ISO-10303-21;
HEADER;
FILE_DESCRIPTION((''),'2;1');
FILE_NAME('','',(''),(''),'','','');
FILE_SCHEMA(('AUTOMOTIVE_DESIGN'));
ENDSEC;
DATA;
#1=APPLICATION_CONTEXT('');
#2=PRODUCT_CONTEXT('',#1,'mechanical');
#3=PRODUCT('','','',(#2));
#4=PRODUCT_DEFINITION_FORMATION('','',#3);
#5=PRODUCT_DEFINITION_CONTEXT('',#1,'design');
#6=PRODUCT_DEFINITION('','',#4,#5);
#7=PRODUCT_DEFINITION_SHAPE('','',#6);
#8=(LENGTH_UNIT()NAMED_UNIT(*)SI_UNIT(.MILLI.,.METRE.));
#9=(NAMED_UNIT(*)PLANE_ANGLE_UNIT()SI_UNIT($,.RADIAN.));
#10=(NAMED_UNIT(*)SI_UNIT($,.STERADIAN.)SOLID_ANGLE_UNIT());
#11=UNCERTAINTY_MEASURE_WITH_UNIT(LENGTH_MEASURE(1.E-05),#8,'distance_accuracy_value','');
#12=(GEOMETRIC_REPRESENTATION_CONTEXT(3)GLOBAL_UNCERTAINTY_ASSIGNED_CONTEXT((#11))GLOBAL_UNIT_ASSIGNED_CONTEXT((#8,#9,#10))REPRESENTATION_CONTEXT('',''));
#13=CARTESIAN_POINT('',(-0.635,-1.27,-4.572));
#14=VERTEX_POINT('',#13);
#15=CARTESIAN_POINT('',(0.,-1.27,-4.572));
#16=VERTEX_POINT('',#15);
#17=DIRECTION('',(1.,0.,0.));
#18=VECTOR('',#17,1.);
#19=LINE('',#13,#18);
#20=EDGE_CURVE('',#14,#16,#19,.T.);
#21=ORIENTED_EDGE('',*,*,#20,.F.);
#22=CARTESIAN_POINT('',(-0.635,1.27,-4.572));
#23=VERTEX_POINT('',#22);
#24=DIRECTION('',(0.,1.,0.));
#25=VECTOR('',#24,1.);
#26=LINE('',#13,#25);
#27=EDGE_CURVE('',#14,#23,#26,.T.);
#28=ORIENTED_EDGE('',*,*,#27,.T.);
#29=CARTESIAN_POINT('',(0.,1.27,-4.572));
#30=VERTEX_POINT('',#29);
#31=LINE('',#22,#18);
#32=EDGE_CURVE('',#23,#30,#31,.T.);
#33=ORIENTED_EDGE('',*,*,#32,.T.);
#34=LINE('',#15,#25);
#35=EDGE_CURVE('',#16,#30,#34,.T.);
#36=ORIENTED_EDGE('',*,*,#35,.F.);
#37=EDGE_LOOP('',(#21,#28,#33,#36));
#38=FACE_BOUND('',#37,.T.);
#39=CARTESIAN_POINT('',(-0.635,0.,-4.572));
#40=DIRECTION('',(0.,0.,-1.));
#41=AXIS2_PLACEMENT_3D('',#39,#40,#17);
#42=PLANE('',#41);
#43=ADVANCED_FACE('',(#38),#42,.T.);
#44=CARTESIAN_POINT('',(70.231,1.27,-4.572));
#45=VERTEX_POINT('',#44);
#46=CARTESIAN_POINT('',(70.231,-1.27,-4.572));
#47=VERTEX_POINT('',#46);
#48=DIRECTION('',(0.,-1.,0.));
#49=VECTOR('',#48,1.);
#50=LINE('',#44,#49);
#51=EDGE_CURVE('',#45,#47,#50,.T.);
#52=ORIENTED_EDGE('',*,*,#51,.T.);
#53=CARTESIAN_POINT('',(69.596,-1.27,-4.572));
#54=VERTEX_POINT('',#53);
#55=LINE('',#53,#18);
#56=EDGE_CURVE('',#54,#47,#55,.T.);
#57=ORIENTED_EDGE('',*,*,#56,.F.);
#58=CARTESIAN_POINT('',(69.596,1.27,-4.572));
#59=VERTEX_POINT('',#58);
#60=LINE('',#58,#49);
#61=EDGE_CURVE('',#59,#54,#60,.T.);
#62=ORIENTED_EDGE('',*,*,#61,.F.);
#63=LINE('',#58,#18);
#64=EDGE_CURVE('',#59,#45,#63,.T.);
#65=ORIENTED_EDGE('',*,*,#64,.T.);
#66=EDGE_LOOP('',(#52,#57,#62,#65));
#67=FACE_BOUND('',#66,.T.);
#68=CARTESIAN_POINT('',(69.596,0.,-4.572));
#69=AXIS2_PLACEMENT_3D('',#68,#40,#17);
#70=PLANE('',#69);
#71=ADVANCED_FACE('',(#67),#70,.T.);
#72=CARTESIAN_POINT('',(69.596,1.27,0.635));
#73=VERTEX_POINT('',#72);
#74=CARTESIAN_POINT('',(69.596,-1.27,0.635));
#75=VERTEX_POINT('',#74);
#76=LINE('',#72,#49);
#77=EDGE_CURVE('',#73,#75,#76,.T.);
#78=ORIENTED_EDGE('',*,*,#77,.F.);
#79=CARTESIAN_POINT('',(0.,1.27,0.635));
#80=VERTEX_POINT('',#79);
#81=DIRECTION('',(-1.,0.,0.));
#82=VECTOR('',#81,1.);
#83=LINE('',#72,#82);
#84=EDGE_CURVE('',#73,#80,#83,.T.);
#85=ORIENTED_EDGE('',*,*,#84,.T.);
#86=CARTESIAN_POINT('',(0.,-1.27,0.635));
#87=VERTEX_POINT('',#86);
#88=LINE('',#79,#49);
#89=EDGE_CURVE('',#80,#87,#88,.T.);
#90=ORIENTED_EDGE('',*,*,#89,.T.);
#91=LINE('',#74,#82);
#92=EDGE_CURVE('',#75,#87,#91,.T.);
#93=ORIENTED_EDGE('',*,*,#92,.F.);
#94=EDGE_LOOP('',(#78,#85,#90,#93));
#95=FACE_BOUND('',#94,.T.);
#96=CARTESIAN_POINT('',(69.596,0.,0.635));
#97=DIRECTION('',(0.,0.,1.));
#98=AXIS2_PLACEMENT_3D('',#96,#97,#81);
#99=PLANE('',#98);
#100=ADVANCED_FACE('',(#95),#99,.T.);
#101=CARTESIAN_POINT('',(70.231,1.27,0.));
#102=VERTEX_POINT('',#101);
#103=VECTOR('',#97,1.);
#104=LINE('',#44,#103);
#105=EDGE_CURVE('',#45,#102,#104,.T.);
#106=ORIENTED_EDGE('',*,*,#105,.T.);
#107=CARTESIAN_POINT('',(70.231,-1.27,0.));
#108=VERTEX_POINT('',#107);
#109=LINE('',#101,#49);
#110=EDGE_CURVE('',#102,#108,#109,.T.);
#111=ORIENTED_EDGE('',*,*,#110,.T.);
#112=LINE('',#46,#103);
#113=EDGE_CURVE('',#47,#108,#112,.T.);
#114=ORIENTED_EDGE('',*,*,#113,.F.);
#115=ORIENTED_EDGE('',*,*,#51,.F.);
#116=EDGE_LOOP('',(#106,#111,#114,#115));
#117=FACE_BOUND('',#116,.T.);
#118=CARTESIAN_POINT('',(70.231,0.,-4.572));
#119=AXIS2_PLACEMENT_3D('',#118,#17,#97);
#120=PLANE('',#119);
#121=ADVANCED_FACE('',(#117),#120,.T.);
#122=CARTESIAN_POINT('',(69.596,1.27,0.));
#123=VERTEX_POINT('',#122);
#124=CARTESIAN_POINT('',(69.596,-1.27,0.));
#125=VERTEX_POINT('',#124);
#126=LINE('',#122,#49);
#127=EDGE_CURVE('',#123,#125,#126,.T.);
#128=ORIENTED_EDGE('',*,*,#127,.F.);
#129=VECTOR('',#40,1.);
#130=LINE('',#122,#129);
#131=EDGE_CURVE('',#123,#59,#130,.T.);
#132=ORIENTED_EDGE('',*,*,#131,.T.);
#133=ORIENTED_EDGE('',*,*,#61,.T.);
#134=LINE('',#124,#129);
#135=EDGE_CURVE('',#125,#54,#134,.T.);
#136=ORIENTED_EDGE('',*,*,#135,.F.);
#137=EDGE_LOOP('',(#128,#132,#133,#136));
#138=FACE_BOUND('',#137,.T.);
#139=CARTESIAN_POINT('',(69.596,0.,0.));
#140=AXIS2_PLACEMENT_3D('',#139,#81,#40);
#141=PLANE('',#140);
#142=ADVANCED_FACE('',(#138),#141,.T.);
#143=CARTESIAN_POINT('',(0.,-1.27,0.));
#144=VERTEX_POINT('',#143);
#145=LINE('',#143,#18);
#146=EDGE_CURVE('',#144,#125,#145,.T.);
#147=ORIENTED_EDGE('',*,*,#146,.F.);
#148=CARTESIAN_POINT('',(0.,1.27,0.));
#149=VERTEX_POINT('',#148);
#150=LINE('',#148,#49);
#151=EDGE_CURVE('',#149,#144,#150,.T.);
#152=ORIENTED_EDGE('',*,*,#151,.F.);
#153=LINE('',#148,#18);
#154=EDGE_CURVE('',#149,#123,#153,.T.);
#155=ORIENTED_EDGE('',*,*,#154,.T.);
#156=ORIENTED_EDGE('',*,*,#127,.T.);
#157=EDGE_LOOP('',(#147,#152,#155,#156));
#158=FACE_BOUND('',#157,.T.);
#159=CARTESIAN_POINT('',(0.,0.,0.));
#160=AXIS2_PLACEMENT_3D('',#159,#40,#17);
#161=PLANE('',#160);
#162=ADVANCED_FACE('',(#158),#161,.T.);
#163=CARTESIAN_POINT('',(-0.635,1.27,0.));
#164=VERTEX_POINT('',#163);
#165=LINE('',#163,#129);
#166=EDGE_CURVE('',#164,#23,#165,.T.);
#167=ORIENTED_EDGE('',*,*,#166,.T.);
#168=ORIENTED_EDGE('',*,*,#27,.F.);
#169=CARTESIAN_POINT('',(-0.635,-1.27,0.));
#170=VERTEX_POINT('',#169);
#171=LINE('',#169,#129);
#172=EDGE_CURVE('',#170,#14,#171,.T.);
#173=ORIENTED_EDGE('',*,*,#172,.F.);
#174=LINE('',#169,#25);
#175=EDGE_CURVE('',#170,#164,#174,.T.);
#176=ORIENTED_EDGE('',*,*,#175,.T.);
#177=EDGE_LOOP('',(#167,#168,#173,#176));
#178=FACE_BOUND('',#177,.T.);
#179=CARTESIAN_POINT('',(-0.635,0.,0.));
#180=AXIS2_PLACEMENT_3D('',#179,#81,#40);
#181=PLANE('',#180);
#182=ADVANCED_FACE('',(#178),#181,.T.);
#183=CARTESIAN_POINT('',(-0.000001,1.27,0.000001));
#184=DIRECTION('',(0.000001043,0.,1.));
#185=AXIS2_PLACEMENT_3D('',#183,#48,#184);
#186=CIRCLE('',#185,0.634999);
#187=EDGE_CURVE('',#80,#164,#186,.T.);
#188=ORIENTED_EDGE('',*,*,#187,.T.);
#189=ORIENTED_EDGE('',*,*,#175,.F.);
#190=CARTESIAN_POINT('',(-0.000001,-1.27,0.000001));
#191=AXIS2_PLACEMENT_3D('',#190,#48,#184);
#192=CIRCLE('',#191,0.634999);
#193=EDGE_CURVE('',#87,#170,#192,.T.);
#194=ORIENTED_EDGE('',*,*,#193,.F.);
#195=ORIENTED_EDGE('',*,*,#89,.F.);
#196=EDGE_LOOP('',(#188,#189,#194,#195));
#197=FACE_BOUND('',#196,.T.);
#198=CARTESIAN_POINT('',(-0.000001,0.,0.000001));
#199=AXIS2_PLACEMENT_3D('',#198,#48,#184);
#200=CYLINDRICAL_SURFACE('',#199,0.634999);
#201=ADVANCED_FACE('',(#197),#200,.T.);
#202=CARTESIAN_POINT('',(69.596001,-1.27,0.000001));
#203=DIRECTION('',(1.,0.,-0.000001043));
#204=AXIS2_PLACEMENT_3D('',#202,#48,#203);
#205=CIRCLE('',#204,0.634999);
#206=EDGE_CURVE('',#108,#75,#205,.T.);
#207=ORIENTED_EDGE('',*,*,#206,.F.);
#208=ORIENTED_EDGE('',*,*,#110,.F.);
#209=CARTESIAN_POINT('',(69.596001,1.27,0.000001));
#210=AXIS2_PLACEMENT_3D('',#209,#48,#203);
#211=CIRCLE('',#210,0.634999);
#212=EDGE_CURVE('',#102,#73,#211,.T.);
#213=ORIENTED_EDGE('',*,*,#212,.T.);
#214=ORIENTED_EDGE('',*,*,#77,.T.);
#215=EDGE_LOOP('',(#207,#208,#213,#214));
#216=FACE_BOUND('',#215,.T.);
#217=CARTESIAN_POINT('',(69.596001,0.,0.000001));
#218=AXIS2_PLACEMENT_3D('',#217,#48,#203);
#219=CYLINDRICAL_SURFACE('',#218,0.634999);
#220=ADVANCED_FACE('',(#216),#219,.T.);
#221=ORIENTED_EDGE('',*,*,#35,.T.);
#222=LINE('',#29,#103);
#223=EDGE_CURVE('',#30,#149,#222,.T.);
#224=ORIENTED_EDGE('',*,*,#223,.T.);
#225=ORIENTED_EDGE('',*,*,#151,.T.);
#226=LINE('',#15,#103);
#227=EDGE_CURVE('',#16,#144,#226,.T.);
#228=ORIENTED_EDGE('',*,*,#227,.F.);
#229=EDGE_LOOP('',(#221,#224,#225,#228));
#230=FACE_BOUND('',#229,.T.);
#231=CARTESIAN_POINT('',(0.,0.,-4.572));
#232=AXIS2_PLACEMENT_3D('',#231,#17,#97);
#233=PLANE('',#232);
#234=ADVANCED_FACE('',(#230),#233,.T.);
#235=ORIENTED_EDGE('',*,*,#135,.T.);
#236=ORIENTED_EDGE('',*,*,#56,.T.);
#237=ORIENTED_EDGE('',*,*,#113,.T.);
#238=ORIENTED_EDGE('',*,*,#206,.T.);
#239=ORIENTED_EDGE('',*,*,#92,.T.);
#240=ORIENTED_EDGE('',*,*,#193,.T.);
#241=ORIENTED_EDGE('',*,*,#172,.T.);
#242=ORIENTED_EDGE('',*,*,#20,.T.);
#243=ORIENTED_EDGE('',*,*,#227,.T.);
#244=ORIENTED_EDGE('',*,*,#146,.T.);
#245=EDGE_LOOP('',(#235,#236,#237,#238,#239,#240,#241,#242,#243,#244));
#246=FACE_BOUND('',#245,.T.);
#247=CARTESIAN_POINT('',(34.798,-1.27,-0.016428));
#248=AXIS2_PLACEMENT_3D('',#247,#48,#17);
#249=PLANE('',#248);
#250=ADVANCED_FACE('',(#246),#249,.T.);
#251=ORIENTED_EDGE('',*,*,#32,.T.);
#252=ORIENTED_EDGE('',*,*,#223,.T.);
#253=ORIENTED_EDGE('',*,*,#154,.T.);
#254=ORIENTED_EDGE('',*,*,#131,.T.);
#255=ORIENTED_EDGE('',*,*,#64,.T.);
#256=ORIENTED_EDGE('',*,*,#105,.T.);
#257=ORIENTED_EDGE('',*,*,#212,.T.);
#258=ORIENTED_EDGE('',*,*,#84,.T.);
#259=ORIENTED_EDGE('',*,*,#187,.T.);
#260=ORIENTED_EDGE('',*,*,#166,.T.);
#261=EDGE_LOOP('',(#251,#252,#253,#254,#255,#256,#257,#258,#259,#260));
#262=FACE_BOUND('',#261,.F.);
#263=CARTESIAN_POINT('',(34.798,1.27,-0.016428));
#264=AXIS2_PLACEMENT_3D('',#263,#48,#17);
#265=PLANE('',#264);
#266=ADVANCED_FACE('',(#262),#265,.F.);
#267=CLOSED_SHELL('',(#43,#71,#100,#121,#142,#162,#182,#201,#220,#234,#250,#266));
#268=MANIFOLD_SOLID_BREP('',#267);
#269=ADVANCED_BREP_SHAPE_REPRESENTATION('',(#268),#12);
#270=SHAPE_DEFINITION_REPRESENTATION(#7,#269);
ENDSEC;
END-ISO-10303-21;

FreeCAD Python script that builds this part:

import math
import FreeCAD as App
import Part
import Sketcher

V = App.Vector
Q = App.Units.Quantity

doc = App.newDocument("Part")
params = doc.addObject("Spreadsheet::Sheet", "Params")
for row, (alias, value) in enumerate([
    ("sketch1_radius", "0.025 in"),
    ("sketch1_width", "2.74 in"),
    ("sketch1_height", "0.18 in"),
    ("pad1_length", "0.1 in"),
], start=1):
    params.set(f"A{row}", alias)
    params.set(f"B{row}", "=" + value)
    params.setAlias(f"B{row}", alias)

body = doc.addObject("PartDesign::Body", "Body")

# Sketch on XZ plane
sketch1 = body.newObject("Sketcher::SketchObject", "Sketch")
sketch1.AttachmentSupport = (doc.getObject("XZ_Plane"), [""])
sketch1.MapMode = "FlatFace"
sketch1.addGeometry([
    Part.LineSegment(V(0, -4.6, 0), V(0, 0, 0)),  # 0
    Part.LineSegment(V(0, 0, 0), V(69.6, 0, 0)),  # 1
    Part.LineSegment(V(69.6, 0, 0), V(69.6, -4.6, 0)),  # 2
    Part.LineSegment(V(69.6, -4.6, 0), V(70.2, -4.6, 0)),  # 3
    Part.LineSegment(V(70.2, -4.6, 0), V(70.2, 0, 0)),  # 4
    Part.ArcOfCircle(Part.Circle(V(69.6, 0, 0), V(0, 0, 1), 0.6), math.radians(0), math.radians(90)),  # 5
    Part.LineSegment(V(69.6, 0.6, 0), V(0, 0.6, 0)),  # 6
    Part.ArcOfCircle(Part.Circle(V(0, 0, 0), V(0, 0, 1), 0.6), math.radians(90), math.radians(180)),  # 7
    Part.LineSegment(V(-0.6, 0, 0), V(-0.6, -4.6, 0)),  # 8
    Part.LineSegment(V(-0.6, -4.6, 0), V(0, -4.6, 0)),  # 9
], False)
sketch1.addConstraint([
    Sketcher.Constraint("Coincident", 0, 2, 1, 1),
    Sketcher.Constraint("Coincident", 1, 2, 2, 1),
    Sketcher.Constraint("Coincident", 2, 2, 3, 1),
    Sketcher.Constraint("Coincident", 3, 2, 4, 1),
    Sketcher.Constraint("Tangent", 4, 2, 5, 1),
    Sketcher.Constraint("Tangent", 5, 2, 6, 1),
    Sketcher.Constraint("Tangent", 6, 2, 7, 1),
    Sketcher.Constraint("Tangent", 7, 2, 8, 1),
    Sketcher.Constraint("Coincident", 8, 2, 9, 1),
    Sketcher.Constraint("Coincident", 9, 2, 0, 1),
    Sketcher.Constraint("Vertical", 0),
    Sketcher.Constraint("Horizontal", 1),
    Sketcher.Constraint("Vertical", 2),
    Sketcher.Constraint("Horizontal", 3),
    Sketcher.Constraint("Vertical", 4),
    Sketcher.Constraint("Horizontal", 6),
    Sketcher.Constraint("Vertical", 8),
    Sketcher.Constraint("Horizontal", 9),
    Sketcher.Constraint("Coincident", 7, 3, -1, 1),
    Sketcher.Constraint("Coincident", 0, 2, -1, 1),
    Sketcher.Constraint("Coincident", 1, 2, 5, 3),
    Sketcher.Constraint("Horizontal", 3, 2, 8, 2),
    Sketcher.Constraint("Radius", 5, Q("0.025 in")),
    Sketcher.Constraint("DistanceX", 1, 1, 1, 2, Q("2.74 in")),
    Sketcher.Constraint("DistanceY", 0, 1, 0, 2, Q("0.18 in")),
])
sketch1.setExpression("Constraints[22]", "Params.sketch1_radius")
sketch1.setExpression("Constraints[23]", "Params.sketch1_width")
sketch1.setExpression("Constraints[24]", "Params.sketch1_height")
pad1 = body.newObject("PartDesign::Pad", "Pad")
pad1.Profile = sketch1
pad1.setExpression("Length", "Params.pad1_length")
pad1.Midplane = True

doc.recompute()
